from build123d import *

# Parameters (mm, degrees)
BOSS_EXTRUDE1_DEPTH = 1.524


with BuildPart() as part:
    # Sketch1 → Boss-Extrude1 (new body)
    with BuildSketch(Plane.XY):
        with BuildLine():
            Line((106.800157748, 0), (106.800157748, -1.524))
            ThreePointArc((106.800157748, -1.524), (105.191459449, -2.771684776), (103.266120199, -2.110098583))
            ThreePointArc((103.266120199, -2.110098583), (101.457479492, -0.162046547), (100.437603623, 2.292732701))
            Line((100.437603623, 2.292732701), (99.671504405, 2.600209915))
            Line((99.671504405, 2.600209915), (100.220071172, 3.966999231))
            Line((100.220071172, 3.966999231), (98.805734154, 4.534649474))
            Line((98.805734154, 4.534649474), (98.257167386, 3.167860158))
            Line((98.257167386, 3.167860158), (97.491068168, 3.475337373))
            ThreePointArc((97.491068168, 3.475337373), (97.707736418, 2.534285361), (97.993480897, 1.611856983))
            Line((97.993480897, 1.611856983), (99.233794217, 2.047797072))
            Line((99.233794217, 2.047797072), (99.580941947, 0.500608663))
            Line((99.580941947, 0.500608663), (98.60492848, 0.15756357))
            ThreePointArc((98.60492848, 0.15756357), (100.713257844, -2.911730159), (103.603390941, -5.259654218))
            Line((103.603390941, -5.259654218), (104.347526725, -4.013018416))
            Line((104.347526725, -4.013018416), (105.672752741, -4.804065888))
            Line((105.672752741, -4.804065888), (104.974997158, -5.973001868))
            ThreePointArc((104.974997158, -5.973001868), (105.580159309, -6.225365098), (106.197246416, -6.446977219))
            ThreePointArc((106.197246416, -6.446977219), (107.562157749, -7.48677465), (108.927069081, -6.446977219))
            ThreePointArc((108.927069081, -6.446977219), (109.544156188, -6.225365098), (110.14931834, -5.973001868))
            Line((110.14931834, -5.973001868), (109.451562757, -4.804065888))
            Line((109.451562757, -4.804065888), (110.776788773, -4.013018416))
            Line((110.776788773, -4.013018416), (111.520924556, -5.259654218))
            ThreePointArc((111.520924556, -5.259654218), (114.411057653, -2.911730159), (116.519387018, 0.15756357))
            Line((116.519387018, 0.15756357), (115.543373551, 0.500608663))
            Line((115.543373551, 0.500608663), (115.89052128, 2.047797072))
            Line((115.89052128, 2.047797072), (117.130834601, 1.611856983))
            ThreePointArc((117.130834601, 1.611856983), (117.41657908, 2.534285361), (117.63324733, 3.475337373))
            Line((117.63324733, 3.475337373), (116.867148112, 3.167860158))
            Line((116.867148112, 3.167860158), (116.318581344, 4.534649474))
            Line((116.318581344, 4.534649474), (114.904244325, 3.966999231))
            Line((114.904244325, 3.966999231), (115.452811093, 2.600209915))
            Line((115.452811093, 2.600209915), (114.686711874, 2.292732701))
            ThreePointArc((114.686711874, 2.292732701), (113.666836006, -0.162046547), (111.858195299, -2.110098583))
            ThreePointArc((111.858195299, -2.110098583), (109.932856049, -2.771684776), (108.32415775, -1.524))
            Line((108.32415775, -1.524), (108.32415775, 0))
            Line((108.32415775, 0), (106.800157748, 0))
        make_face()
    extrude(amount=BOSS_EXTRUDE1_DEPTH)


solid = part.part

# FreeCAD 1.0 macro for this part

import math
import FreeCAD as App
import Part
import Sketcher
from FreeCAD import Vector
Q = App.Units.Quantity

doc = App.newDocument("Part")
body = doc.addObject("PartDesign::Body", "Body")

sketch1 = body.newObject("Sketcher::SketchObject", "Sketch")
sketch1.AttachmentSupport = (doc.getObject("XY_Plane"), [""])
sketch1.MapMode = "FlatFace"
sketch1.addGeometry([
    Part.LineSegment(Vector(106.8, 0, 0), Vector(106.8, -1.5, 0)),
    Part.ArcOfCircle(Part.Circle(Vector(104.8, -0.7, 0), Vector(0, 0, 1), 2.1), math.radians(-137), math.radians(-24)),
    Part.ArcOfCircle(Part.Circle(Vector(107.8, 3.9, 0), Vector(0, 0, 1), 7.5), math.radians(-168), math.radians(-127)),
    Part.LineSegment(Vector(100.4, 2.3, 0), Vector(99.7, 2.6, 0)),
    Part.LineSegment(Vector(99.7, 2.6, 0), Vector(100.2, 4, 0)),
    Part.LineSegment(Vector(100.2, 4, 0), Vector(98.8, 4.5, 0)),
    Part.LineSegment(Vector(98.8, 4.5, 0), Vector(98.3, 3.2, 0)),
    Part.LineSegment(Vector(98.3, 3.2, 0), Vector(97.5, 3.5, 0)),
    Part.ArcOfCircle(Part.Circle(Vector(110.3, 5.9, 0), Vector(0, 0, 1), 13), math.radians(-169.16), math.radians(-160.67)),
    Part.LineSegment(Vector(98, 1.6, 0), Vector(99.2, 2, 0)),
    Part.LineSegment(Vector(99.2, 2, 0), Vector(99.6, 0.5, 0)),
    Part.LineSegment(Vector(99.6, 0.5, 0), Vector(98.6, 0.2, 0)),
    Part.ArcOfCircle(Part.Circle(Vector(110.3, 5.9, 0), Vector(0, 0, 1), 13), math.radians(-154), math.radians(-121)),
    Part.LineSegment(Vector(103.6, -5.3, 0), Vector(104.3, -4, 0)),
    Part.LineSegment(Vector(104.3, -4, 0), Vector(105.7, -4.8, 0)),
    Part.LineSegment(Vector(105.7, -4.8, 0), Vector(105, -6, 0)),
    Part.ArcOfCircle(Part.Circle(Vector(110.3, 5.9, 0), Vector(0, 0, 1), 13), math.radians(-114.08), math.radians(-108.31)),
    Part.ArcOfCircle(Part.Circle(Vector(107.6, -6.1, 0), Vector(0, 0, 1), 1.4), math.radians(-165), math.radians(-15)),
    Part.ArcOfCircle(Part.Circle(Vector(104.8, 5.9, 0), Vector(0, 0, 1), 13), math.radians(-71.69), math.radians(-65.92)),
    Part.LineSegment(Vector(110.1, -6, 0), Vector(109.5, -4.8, 0)),
    Part.LineSegment(Vector(109.5, -4.8, 0), Vector(110.8, -4, 0)),
    Part.LineSegment(Vector(110.8, -4, 0), Vector(111.5, -5.3, 0)),
    Part.ArcOfCircle(Part.Circle(Vector(104.8, 5.9, 0), Vector(0, 0, 1), 13), math.radians(-59), math.radians(-26)),
    Part.LineSegment(Vector(116.5, 0.2, 0), Vector(115.5, 0.5, 0)),
    Part.LineSegment(Vector(115.5, 0.5, 0), Vector(115.9, 2, 0)),
    Part.LineSegment(Vector(115.9, 2, 0), Vector(117.1, 1.6, 0)),
    Part.ArcOfCircle(Part.Circle(Vector(104.8, 5.9, 0), Vector(0, 0, 1), 13), math.radians(-19.33), math.radians(-10.84)),
    Part.LineSegment(Vector(117.6, 3.5, 0), Vector(116.9, 3.2, 0)),
    Part.LineSegment(Vector(116.9, 3.2, 0), Vector(116.3, 4.5, 0)),
    Part.LineSegment(Vector(116.3, 4.5, 0), Vector(114.9, 4, 0)),
    Part.LineSegment(Vector(114.9, 4, 0), Vector(115.5, 2.6, 0)),
    Part.LineSegment(Vector(115.5, 2.6, 0), Vector(114.7, 2.3, 0)),
    Part.ArcOfCircle(Part.Circle(Vector(107.3, 3.9, 0), Vector(0, 0, 1), 7.5), math.radians(-53), math.radians(-12)),
    Part.ArcOfCircle(Part.Circle(Vector(110.3, -0.7, 0), Vector(0, 0, 1), 2.1), math.radians(-156), math.radians(-43)),
    Part.LineSegment(Vector(108.3, -1.5, 0), Vector(108.3, 0, 0)),
    Part.LineSegment(Vector(108.3, 0, 0), Vector(106.8, 0, 0)),
], False)
sketch1.addConstraint([
    Sketcher.Constraint("Coincident", 0, 2, 1, 2),
    Sketcher.Constraint("Coincident", 1, 1, 2, 2),
    Sketcher.Constraint("Coincident", 2, 1, 3, 1),
    Sketcher.Constraint("Coincident", 3, 2, 4, 1),
    Sketcher.Constraint("Coincident", 4, 2, 5, 1),
    Sketcher.Constraint("Coincident", 5, 2, 6, 1),
    Sketcher.Constraint("Coincident", 6, 2, 7, 1),
    Sketcher.Constraint("Coincident", 7, 2, 8, 1),
    Sketcher.Constraint("Coincident", 8, 2, 9, 1),
    Sketcher.Constraint("Coincident", 9, 2, 10, 1),
    Sketcher.Constraint("Coincident", 10, 2, 11, 1),
    Sketcher.Constraint("Coincident", 11, 2, 12, 1),
    Sketcher.Constraint("Coincident", 12, 2, 13, 1),
    Sketcher.Constraint("Coincident", 13, 2, 14, 1),
    Sketcher.Constraint("Coincident", 14, 2, 15, 1),
    Sketcher.Constraint("Coincident", 15, 2, 16, 1),
    Sketcher.Constraint("Coincident", 16, 2, 17, 1),
    Sketcher.Constraint("Coincident", 17, 2, 18, 1),
    Sketcher.Constraint("Coincident", 18, 2, 19, 1),
    Sketcher.Constraint("Coincident", 19, 2, 20, 1),
    Sketcher.Constraint("Coincident", 20, 2, 21, 1),
    Sketcher.Constraint("Coincident", 21, 2, 22, 1),
    Sketcher.Constraint("Coincident", 22, 2, 23, 1),
    Sketcher.Constraint("Coincident", 23, 2, 24, 1),
    Sketcher.Constraint("Coincident", 24, 2, 25, 1),
    Sketcher.Constraint("Coincident", 25, 2, 26, 1),
    Sketcher.Constraint("Coincident", 26, 2, 27, 1),
    Sketcher.Constraint("Coincident", 27, 2, 28, 1),
    Sketcher.Constraint("Coincident", 28, 2, 29, 1),
    Sketcher.Constraint("Coincident", 29, 2, 30, 1),
    Sketcher.Constraint("Coincident", 30, 2, 31, 1),
    Sketcher.Constraint("Coincident", 31, 2, 32, 2),
    Sketcher.Constraint("Coincident", 32, 1, 33, 2),
    Sketcher.Constraint("Coincident", 33, 1, 34, 1),
    Sketcher.Constraint("Coincident", 34, 2, 35, 1),
    Sketcher.Constraint("Coincident", 35, 2, 0, 1),
    Sketcher.Constraint("Vertical", 0),
    Sketcher.Constraint("Vertical", 34),
    Sketcher.Constraint("Horizontal", 35),
    Sketcher.Constraint("Coincident", 12, 3, 8, 3),
    Sketcher.Constraint("Coincident", 16, 3, 8, 3),
    Sketcher.Constraint("Coincident", 22, 3, 18, 3),
    Sketcher.Constraint("Coincident", 26, 3, 18, 3),
    Sketcher.Constraint("Equal", 8, 12),
    Sketcher.Constraint("Equal", 12, 16),
    Sketcher.Constraint("Equal", 16, 18),
    Sketcher.Constraint("Equal", 18, 22),
    Sketcher.Constraint("Equal", 22, 26),
    Sketcher.Constraint("Equal", 2, 32),
    Sketcher.Constraint("Equal", 1, 33),
    Sketcher.Constraint("PointOnObject", 34, 2, -1),
    Sketcher.Constraint("Perpendicular", 3, 4),
    Sketcher.Constraint("Perpendicular", 4, 5),
    Sketcher.Constraint("Perpendicular", 5, 6),
    Sketcher.Constraint("Perpendicular", 6, 7),
    Sketcher.Constraint("Parallel", 9, 11),
    Sketcher.Constraint("Perpendicular", 13, 14),
    Sketcher.Constraint("Perpendicular", 14, 15),
    Sketcher.Constraint("Perpendicular", 19, 20),
    Sketcher.Constraint("Perpendicular", 20, 21),
    Sketcher.Constraint("Parallel", 23, 25),
    Sketcher.Constraint("Perpendicular", 27, 28),
    Sketcher.Constraint("Perpendicular", 28, 29),
    Sketcher.Constraint("Perpendicular", 29, 30),
    Sketcher.Constraint("Perpendicular", 30, 31),
    Sketcher.Constraint("Horizontal", 16, 3, 18, 3),
    Sketcher.Constraint("Horizontal", 2, 3, 32, 3),
    Sketcher.Constraint("Horizontal", 1, 3, 33, 3),
    Sketcher.Constraint("Horizontal", 16, 2, 17, 2),
    Sketcher.Constraint("Horizontal", 15, 2, 18, 2),
    Sketcher.Constraint("Horizontal", 14, 2, 19, 2),
    Sketcher.Constraint("Horizontal", 13, 2, 20, 2),
    Sketcher.Constraint("Horizontal", 12, 2, 21, 2),
    Sketcher.Constraint("Horizontal", 11, 2, 22, 2),
    Sketcher.Constraint("Horizontal", 10, 2, 23, 2),
    Sketcher.Constraint("Horizontal", 9, 2, 24, 2),
    Sketcher.Constraint("Horizontal", 8, 2, 25, 2),
    Sketcher.Constraint("Horizontal", 7, 2, 26, 2),
    Sketcher.Constraint("Horizontal", 6, 2, 27, 2),
    Sketcher.Constraint("Horizontal", 5, 2, 28, 2),
    Sketcher.Constraint("Horizontal", 4, 2, 29, 2),
    Sketcher.Constraint("Horizontal", 3, 2, 30, 2),
    Sketcher.Constraint("Horizontal", 2, 1, 31, 2),
    Sketcher.Constraint("Horizontal", 1, 1, 32, 1),
    Sketcher.Constraint("Horizontal", 0, 2, 33, 1),
    Sketcher.Constraint("Equal", 35, 0),
    Sketcher.Constraint("Equal", 4, 6),
    Sketcher.Constraint("Equal", 3, 7),
    Sketcher.Constraint("Equal", 11, 23),
    Sketcher.Constraint("Equal", 7, 27),
    Sketcher.Constraint("DistanceX", 35, 2, 35, 1, Q("0.06 in")),
    Sketcher.Constraint("Distance", 5, Q("0.06 in")),
    Sketcher.Constraint("Radius", 8, 13.034501),
    Sketcher.Constraint("Radius", 1, 2.14154),
    Sketcher.Constraint("Radius", 2, 7.537091),
    Sketcher.Constraint("Radius", 17, 1.415738),
    Sketcher.Constraint("Distance", 3, Q("0.0325 in")),
    Sketcher.Constraint("DistanceY", 1, 3, -1, 1, 0.659002),
    Sketcher.Constraint("DistanceY", 1, 1, -1, 1, 2.110099),
    Sketcher.Constraint("DistanceY", -1, 1, 4, 2, 3.966999),
    Sketcher.Constraint("DistanceY", 15, 2, -1, 1, 5.973002),
    Sketcher.Constraint("DistanceX", 17, 3, 16, 3, 2.730699),
    Sketcher.Constraint("DistanceX", 3, 2, 2, 1, 0.766099),
    Sketcher.Constraint("DistanceY", 6, 2, 22, 3, 2.759498),
    Sketcher.Constraint("DistanceY", 10, 2, 3, 2, 2.099601),
    Sketcher.Constraint("DistanceX", 20, 2, 22, 2, 5.742598),
    Sketcher.Constraint("DistanceY", 33, 3, 24, 2, 2.706799),
    Sketcher.Constraint("DistanceY", 25, 2, 16, 3, 4.315501),
    Sketcher.Constraint("Distance", 13, 1.45184),
    Sketcher.Constraint("Distance", 15, 1.36135),
    Sketcher.Constraint("DistanceY", -1, 1, 2, 3, 3.911782),
    Sketcher.Constraint("DistanceX", -1, 1, 18, 3, 104.831458),
    Sketcher.Constraint("DistanceX", -1, 1, 10, 2, 99.580942),
    Sketcher.Constraint("DistanceX", -1, 1, 11, 2, 98.604928),
    Sketcher.Constraint("DistanceX", -1, 1, 17, 2, 108.927069),
])
pad1 = body.newObject("PartDesign::Pad", "Pad")
pad1.Profile = sketch1
pad1.Length = Q("0.06 in")

doc.recompute()
